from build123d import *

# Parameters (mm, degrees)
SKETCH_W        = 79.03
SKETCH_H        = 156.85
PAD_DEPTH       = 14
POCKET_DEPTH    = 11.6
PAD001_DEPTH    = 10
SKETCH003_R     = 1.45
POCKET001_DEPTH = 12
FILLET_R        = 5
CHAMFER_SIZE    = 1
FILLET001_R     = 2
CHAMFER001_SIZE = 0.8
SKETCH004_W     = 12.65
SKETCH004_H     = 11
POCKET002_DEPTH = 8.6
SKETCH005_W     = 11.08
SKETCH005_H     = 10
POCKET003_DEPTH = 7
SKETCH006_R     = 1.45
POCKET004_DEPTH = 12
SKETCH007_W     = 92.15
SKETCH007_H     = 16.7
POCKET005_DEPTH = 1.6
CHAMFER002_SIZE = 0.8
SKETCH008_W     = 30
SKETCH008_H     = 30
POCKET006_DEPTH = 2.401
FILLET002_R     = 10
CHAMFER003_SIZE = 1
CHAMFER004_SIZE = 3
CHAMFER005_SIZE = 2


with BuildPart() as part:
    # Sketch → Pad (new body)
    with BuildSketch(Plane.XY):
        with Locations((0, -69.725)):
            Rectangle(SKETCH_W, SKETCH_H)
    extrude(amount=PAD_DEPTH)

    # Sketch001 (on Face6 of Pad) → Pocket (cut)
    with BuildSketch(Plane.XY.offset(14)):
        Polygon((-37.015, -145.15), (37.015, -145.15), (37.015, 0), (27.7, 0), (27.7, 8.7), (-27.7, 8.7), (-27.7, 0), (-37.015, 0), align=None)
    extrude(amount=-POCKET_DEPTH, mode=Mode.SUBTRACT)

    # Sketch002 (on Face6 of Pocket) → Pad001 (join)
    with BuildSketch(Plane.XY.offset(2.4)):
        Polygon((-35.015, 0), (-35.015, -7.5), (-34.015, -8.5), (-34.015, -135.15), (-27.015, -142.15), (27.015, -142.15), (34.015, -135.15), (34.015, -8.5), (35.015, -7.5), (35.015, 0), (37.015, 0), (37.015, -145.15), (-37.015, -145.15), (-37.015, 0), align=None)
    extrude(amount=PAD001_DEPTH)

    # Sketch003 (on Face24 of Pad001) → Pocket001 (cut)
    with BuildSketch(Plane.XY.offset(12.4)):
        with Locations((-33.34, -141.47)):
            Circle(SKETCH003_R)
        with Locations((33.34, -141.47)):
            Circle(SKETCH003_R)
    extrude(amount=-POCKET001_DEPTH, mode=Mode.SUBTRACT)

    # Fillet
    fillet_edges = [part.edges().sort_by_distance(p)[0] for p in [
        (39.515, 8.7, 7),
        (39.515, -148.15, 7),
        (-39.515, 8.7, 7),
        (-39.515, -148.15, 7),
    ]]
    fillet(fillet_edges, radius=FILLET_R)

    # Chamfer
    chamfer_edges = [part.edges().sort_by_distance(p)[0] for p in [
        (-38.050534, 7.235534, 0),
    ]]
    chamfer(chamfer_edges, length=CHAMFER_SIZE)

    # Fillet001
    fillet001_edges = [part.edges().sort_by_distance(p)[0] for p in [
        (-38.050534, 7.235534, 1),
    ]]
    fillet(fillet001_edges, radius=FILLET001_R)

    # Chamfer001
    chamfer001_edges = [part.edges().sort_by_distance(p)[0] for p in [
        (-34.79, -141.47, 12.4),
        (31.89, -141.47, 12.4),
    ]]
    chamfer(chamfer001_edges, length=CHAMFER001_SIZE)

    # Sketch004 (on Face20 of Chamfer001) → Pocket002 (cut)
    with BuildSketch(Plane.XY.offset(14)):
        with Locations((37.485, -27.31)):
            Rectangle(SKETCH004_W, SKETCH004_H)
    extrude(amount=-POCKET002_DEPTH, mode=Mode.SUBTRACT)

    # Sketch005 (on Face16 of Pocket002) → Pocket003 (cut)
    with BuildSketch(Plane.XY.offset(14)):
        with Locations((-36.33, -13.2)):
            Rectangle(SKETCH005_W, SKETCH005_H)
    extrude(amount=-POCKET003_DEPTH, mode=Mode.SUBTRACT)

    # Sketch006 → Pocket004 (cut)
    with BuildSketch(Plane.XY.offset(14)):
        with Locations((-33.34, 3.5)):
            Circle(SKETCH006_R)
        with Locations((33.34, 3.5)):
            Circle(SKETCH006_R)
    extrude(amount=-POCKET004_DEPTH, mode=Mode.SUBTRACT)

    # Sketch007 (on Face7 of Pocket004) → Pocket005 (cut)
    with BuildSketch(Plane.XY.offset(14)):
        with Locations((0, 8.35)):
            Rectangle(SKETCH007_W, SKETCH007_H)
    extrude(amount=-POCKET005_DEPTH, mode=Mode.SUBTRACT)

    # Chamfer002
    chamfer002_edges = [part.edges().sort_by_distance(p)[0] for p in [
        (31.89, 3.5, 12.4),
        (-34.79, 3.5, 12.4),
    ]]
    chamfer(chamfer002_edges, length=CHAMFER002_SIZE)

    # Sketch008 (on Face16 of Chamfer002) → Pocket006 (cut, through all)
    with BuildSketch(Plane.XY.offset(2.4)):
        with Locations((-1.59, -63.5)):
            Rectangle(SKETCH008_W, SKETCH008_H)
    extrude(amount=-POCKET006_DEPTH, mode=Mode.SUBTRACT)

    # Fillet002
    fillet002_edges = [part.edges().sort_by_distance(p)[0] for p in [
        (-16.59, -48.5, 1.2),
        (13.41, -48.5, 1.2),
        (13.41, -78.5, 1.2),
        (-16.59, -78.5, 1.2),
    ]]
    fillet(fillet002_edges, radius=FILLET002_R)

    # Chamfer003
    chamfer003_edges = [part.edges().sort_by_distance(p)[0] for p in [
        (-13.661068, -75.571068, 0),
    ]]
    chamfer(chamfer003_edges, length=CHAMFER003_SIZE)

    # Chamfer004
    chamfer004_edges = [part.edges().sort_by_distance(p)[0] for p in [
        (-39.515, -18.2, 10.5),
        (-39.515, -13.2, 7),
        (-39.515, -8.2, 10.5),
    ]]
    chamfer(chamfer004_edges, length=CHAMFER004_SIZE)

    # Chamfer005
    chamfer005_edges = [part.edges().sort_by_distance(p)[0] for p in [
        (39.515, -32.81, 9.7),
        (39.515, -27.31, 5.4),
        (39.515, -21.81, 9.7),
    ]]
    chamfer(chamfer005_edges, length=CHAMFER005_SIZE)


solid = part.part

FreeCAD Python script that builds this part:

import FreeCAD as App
import Part
import Sketcher

V = App.Vector
Q = App.Units.Quantity


def edges_at(feature, points):
    """Names of the edges that pass closest to the given points."""
    edges = feature.Shape.Edges
    near = lambda p: min(range(len(edges)), key=lambda i: edges[i].distToShape(Part.Vertex(*p))[0])
    return sorted({f"Edge{near(p) + 1}" for p in points})

doc = App.newDocument("Part")
params = doc.addObject("Spreadsheet::Sheet", "Params")
for row, (alias, value) in enumerate([
    ("sketch1_width", "79.03 mm"),
    ("sketch1_height", "156.85 mm"),
    ("pad1_length", "14 mm"),
    ("sketch2_width", "55.4 mm"),
    ("sketch2_height", "8.7 mm"),
    ("sketch2_width2", "74.03 mm"),
    ("sketch2_height2", "145.15 mm"),
    ("pocket1_length", "11.6 mm"),
    ("sketch3_width", "2 mm"),
    ("sketch3_height", "7.5 mm"),
    ("sketch3_width2", "74.03 mm"),
    ("sketch3_height2", "145.15 mm"),
    ("pad2_length", "10 mm"),
    ("sketch4_diameter", "2.9 mm"),
    ("pocket2_length", "12 mm"),
    ("fillet_radius", "5 mm"),
    ("chamfer_size", "1 mm"),
    ("fillet2_radius", "2 mm"),
    ("chamfer2_size", "0.8 mm"),
    ("sketch5_height", "11 mm"),
    ("sketch5_width", "12.65 mm"),
    ("pocket3_length", "8.6 mm"),
    ("sketch6_height", "10 mm"),
    ("sketch6_width", "11.08 mm"),
    ("pocket4_length", "7 mm"),
    ("sketch7_diameter", "2.9 mm"),
    ("pocket5_length", "12 mm"),
    ("sketch8_height", "16.7 mm"),
    ("sketch8_width", "92.15 mm"),
    ("pocket6_length", "1.6 mm"),
    ("chamfer3_size", "0.8 mm"),
    ("sketch9_width", "30 mm"),
    ("fillet3_radius", "10 mm"),
    ("chamfer4_size", "1 mm"),
    ("chamfer5_size", "3 mm"),
    ("chamfer6_size", "2 mm"),
], start=1):
    params.set(f"A{row}", alias)
    params.set(f"B{row}", "=" + value)
    params.setAlias(f"B{row}", alias)

body = doc.addObject("PartDesign::Body", "Body")

# Sketch on XY plane
sketch1 = body.newObject("Sketcher::SketchObject", "Sketch")
sketch1.AttachmentSupport = (doc.getObject("XY_Plane"), [""])
sketch1.MapMode = "FlatFace"
sketch1.addGeometry(Part.LineSegment(V(-40, 9, 0), V(-40, -148, 0)), False)
sketch1.addGeometry(Part.LineSegment(V(-40, -148, 0), V(40, -148, 0)), False)
sketch1.addGeometry(Part.LineSegment(V(40, -148, 0), V(40, 9, 0)), False)
sketch1.addGeometry(Part.LineSegment(V(40, 9, 0), V(-40, 9, 0)), False)
sketch1.addConstraint(Sketcher.Constraint("Coincident", 0, 2, 1, 1))
sketch1.addConstraint(Sketcher.Constraint("Coincident", 1, 2, 2, 1))
sketch1.addConstraint(Sketcher.Constraint("Coincident", 2, 2, 3, 1))
sketch1.addConstraint(Sketcher.Constraint("Coincident", 3, 2, 0, 1))
sketch1.addConstraint(Sketcher.Constraint("Vertical", 0))
sketch1.addConstraint(Sketcher.Constraint("Horizontal", 1))
sketch1.addConstraint(Sketcher.Constraint("Vertical", 2))
sketch1.addConstraint(Sketcher.Constraint("Horizontal", 3))
sketch1.addConstraint(Sketcher.Constraint("DistanceX", 1, 1, 1, 2, Q("79.03 mm")))
sketch1.addConstraint(Sketcher.Constraint("DistanceY", 0, 2, 0, 1, Q("156.85 mm")))
sketch1.addConstraint(Sketcher.Constraint("DistanceY", -1, 1, 2, 2, Q("8.7 mm")))
sketch1.addConstraint(Sketcher.Constraint("DistanceX", 0, 2, -1, 1, Q("39.515 mm")))
sketch1.setExpression("Constraints[8]", "Params.sketch1_width")
sketch1.setExpression("Constraints[9]", "Params.sketch1_height")
pad1 = body.newObject("PartDesign::Pad", "Pad")
pad1.Profile = sketch1
pad1.setExpression("Length", "Params.pad1_length")

# Sketch on XY plane
sketch2 = body.newObject("Sketcher::SketchObject", "Sketch001")
sketch2.AttachmentSupport = (doc.getObject("XY_Plane"), [""])
sketch2.MapMode = "FlatFace"
sketch2.AttachmentOffset = App.Placement(V(0, 0, 14), App.Rotation())
sketch2.addGeometry(Part.LineSegment(V(-37, -145, 0), V(37, -145, 0)), False)
sketch2.addGeometry(Part.LineSegment(V(37, -145, 0), V(37, 0, 0)), False)
sketch2.addGeometry(Part.LineSegment(V(37, 0, 0), V(28, 0, 0)), False)
sketch2.addGeometry(Part.LineSegment(V(28, 0, 0), V(28, 9, 0)), False)
sketch2.addGeometry(Part.LineSegment(V(28, 9, 0), V(-28, 9, 0)), False)
sketch2.addGeometry(Part.LineSegment(V(-28, 9, 0), V(-28, 0, 0)), False)
sketch2.addGeometry(Part.LineSegment(V(-28, 0, 0), V(-37, 0, 0)), False)
sketch2.addGeometry(Part.LineSegment(V(-37, 0, 0), V(-37, -145, 0)), False)
sketch2.addConstraint(Sketcher.Constraint("Coincident", 0, 2, 1, 1))
sketch2.addConstraint(Sketcher.Constraint("Coincident", 1, 2, 2, 1))
sketch2.addConstraint(Sketcher.Constraint("Coincident", 2, 2, 3, 1))
sketch2.addConstraint(Sketcher.Constraint("Coincident", 3, 2, 4, 1))
sketch2.addConstraint(Sketcher.Constraint("Coincident", 4, 2, 5, 1))
sketch2.addConstraint(Sketcher.Constraint("Coincident", 5, 2, 6, 1))
sketch2.addConstraint(Sketcher.Constraint("Coincident", 6, 2, 7, 1))
sketch2.addConstraint(Sketcher.Constraint("Coincident", 7, 2, 0, 1))
sketch2.addConstraint(Sketcher.Constraint("Horizontal", 0))
sketch2.addConstraint(Sketcher.Constraint("Vertical", 1))
sketch2.addConstraint(Sketcher.Constraint("Horizontal", 2))
sketch2.addConstraint(Sketcher.Constraint("Vertical", 3))
sketch2.addConstraint(Sketcher.Constraint("Horizontal", 4))
sketch2.addConstraint(Sketcher.Constraint("Vertical", 5))
sketch2.addConstraint(Sketcher.Constraint("Horizontal", 6))
sketch2.addConstraint(Sketcher.Constraint("Vertical", 7))
sketch2.addConstraint(Sketcher.Constraint("Symmetric", 2, 2, 5, 2, -1, 1))
sketch2.addConstraint(Sketcher.Constraint("Symmetric", 1, 2, 6, 2, -2))
sketch2.addConstraint(Sketcher.Constraint("DistanceX", 4, 2, 4, 1, Q("55.4 mm")))
sketch2.addConstraint(Sketcher.Constraint("DistanceY", 3, 1, 3, 2, Q("8.7 mm")))
sketch2.addConstraint(Sketcher.Constraint("DistanceX", 0, 1, 0, 2, Q("74.03 mm")))
sketch2.addConstraint(Sketcher.Constraint("DistanceY", 1, 1, 1, 2, Q("145.15 mm")))
sketch2.setExpression("Constraints[18]", "Params.sketch2_width")
sketch2.setExpression("Constraints[19]", "Params.sketch2_height")
sketch2.setExpression("Constraints[20]", "Params.sketch2_width2")
sketch2.setExpression("Constraints[21]", "Params.sketch2_height2")
pocket1 = body.newObject("PartDesign::Pocket", "Pocket")
pocket1.Profile = sketch2
pocket1.setExpression("Length", "Params.pocket1_length")

# Sketch on XY plane
sketch3 = body.newObject("Sketcher::SketchObject", "Sketch002")
sketch3.AttachmentSupport = (doc.getObject("XY_Plane"), [""])
sketch3.MapMode = "FlatFace"
sketch3.AttachmentOffset = App.Placement(V(0, 0, 2.4), App.Rotation())
sketch3.addGeometry(Part.LineSegment(V(-35, -7.5, 0), V(-35, 0, 0)), False)
sketch3.addGeometry(Part.LineSegment(V(-35, 0, 0), V(-37, 0, 0)), False)
sketch3.addGeometry(Part.LineSegment(V(-37, 0, 0), V(-37, -145.2, 0)), False)
sketch3.addGeometry(Part.LineSegment(V(-37, -145.2, 0), V(37, -145.2, 0)), False)
sketch3.addGeometry(Part.LineSegment(V(37, -145.2, 0), V(37, 0, 0)), False)
sketch3.addGeometry(Part.LineSegment(V(37, 0, 0), V(35, 0, 0)), False)
sketch3.addGeometry(Part.LineSegment(V(35, 0, 0), V(35, -7.5, 0)), False)
sketch3.addGeometry(Part.LineSegment(V(35, -7.5, 0), V(34, -8.5, 0)), False)
sketch3.addGeometry(Part.LineSegment(V(34, -8.5, 0), V(34, -135.2, 0)), False)
sketch3.addGeometry(Part.LineSegment(V(34, -135.2, 0), V(27, -142.2, 0)), False)
sketch3.addGeometry(Part.LineSegment(V(27, -142.2, 0), V(-27, -142.2, 0)), False)
sketch3.addGeometry(Part.LineSegment(V(-27, -142.2, 0), V(-34, -135.2, 0)), False)
sketch3.addGeometry(Part.LineSegment(V(-34, -135.2, 0), V(-34, -8.5, 0)), False)
sketch3.addGeometry(Part.LineSegment(V(-34, -8.5, 0), V(-35, -7.5, 0)), False)
sketch3.addConstraint(Sketcher.Constraint("Coincident", 0, 2, 1, 1))
sketch3.addConstraint(Sketcher.Constraint("Coincident", 1, 2, 2, 1))
sketch3.addConstraint(Sketcher.Constraint("Coincident", 2, 2, 3, 1))
sketch3.addConstraint(Sketcher.Constraint("Coincident", 3, 2, 4, 1))
sketch3.addConstraint(Sketcher.Constraint("Coincident", 4, 2, 5, 1))
sketch3.addConstraint(Sketcher.Constraint("Coincident", 5, 2, 6, 1))
sketch3.addConstraint(Sketcher.Constraint("Coincident", 6, 2, 7, 1))
sketch3.addConstraint(Sketcher.Constraint("Coincident", 7, 2, 8, 1))
sketch3.addConstraint(Sketcher.Constraint("Coincident", 8, 2, 9, 1))
sketch3.addConstraint(Sketcher.Constraint("Coincident", 9, 2, 10, 1))
sketch3.addConstraint(Sketcher.Constraint("Coincident", 10, 2, 11, 1))
sketch3.addConstraint(Sketcher.Constraint("Coincident", 11, 2, 12, 1))
sketch3.addConstraint(Sketcher.Constraint("Coincident", 12, 2, 13, 1))
sketch3.addConstraint(Sketcher.Constraint("Coincident", 13, 2, 0, 1))
sketch3.addConstraint(Sketcher.Constraint("Vertical", 0))
sketch3.addConstraint(Sketcher.Constraint("Horizontal", 1))
sketch3.addConstraint(Sketcher.Constraint("Vertical", 2))
sketch3.addConstraint(Sketcher.Constraint("Horizontal", 3))
sketch3.addConstraint(Sketcher.Constraint("Vertical", 4))
sketch3.addConstraint(Sketcher.Constraint("Horizontal", 5))
sketch3.addConstraint(Sketcher.Constraint("Vertical", 6))
sketch3.addConstraint(Sketcher.Constraint("Vertical", 8))
sketch3.addConstraint(Sketcher.Constraint("Horizontal", 10))
sketch3.addConstraint(Sketcher.Constraint("Vertical", 12))
sketch3.addConstraint(Sketcher.Constraint("Symmetric", 1, 2, 4, 2, -1, 1))
sketch3.addConstraint(Sketcher.Constraint("Symmetric", 0, 2, 5, 2, -2))
sketch3.addConstraint(Sketcher.Constraint("Symmetric", 8, 2, 11, 2, -2))
sketch3.addConstraint(Sketcher.Constraint("Parallel", 7, 9))
sketch3.addConstraint(Sketcher.Constraint("Perpendicular", 9, 11))
sketch3.addConstraint(Sketcher.Constraint("Parallel", 11, 13))
sketch3.addConstraint(Sketcher.Constraint("Horizontal", 7, 2, 12, 2))
sketch3.addConstraint(Sketcher.Constraint("Horizontal", 6, 2, 13, 2))
sketch3.addConstraint(Sketcher.Constraint("DistanceX", 1, 2, 1, 1, Q("2 mm")))
sketch3.addConstraint(Sketcher.Constraint("DistanceY", 0, 1, 0, 2, Q("7.5 mm")))
sketch3.addConstraint(Sketcher.Constraint("DistanceX", 7, 2, 6, 2, Q("1 mm")))
sketch3.addConstraint(Sketcher.Constraint("DistanceY", 3, 2, 8, 2, Q("10 mm")))
sketch3.addConstraint(Sketcher.Constraint("DistanceX", 9, 2, 8, 2, Q("7 mm")))
sketch3.addConstraint(Sketcher.Constraint("DistanceX", 3, 1, 3, 2, Q("74.03 mm")))
sketch3.addConstraint(Sketcher.Constraint("DistanceY", 2, 2, 2, 1, Q("145.15 mm")))
sketch3.setExpression("Constraints[32]", "Params.sketch3_width")
sketch3.setExpression("Constraints[33]", "Params.sketch3_height")
sketch3.setExpression("Constraints[37]", "Params.sketch3_width2")
sketch3.setExpression("Constraints[38]", "Params.sketch3_height2")
pad2 = body.newObject("PartDesign::Pad", "Pad001")
pad2.Profile = sketch3
pad2.setExpression("Length", "Params.pad2_length")

# Sketch on XY plane
sketch4 = body.newObject("Sketcher::SketchObject", "Sketch003")
sketch4.AttachmentSupport = (doc.getObject("XY_Plane"), [""])
sketch4.MapMode = "FlatFace"
sketch4.AttachmentOffset = App.Placement(V(0, 0, 12.4), App.Rotation())
sketch4.addGeometry(Part.Circle(V(-33.3, -141.5, 0), V(0, 0, 1), 1.4), False)
sketch4.addGeometry(Part.Circle(V(33.3, -141.5, 0), V(0, 0, 1), 1.4), False)
sketch4.addConstraint(Sketcher.Constraint("Equal", 0, 1))
sketch4.addConstraint(Sketcher.Constraint("Symmetric", 0, 3, 1, 3, -2))
sketch4.addConstraint(Sketcher.Constraint("Diameter", 0, Q("2.9 mm")))
sketch4.addConstraint(Sketcher.Constraint("DistanceX", 0, 3, -1, 1, Q("33.34 mm")))
sketch4.addConstraint(Sketcher.Constraint("DistanceY", 0, 3, -1, 1, Q("141.47 mm")))
sketch4.setExpression("Constraints[2]", "Params.sketch4_diameter")
pocket2 = body.newObject("PartDesign::Pocket", "Pocket001")
pocket2.Profile = sketch4
pocket2.setExpression("Length", "Params.pocket2_length")
doc.recompute()

fillet = body.newObject("PartDesign::Fillet", "Fillet")
fillet.Base = (pocket2, edges_at(pocket2, [
    (39.515, 8.7, 7),
    (39.515, -148.15, 7),
    (-39.515, 8.7, 7),
    (-39.515, -148.15, 7),
]))
fillet.setExpression("Radius", "Params.fillet_radius")
doc.recompute()

chamfer = body.newObject("PartDesign::Chamfer", "Chamfer")
chamfer.Base = (fillet, edges_at(fillet, [(-38.051, 7.236, 0)]))
chamfer.setExpression("Size", "Params.chamfer_size")
doc.recompute()

fillet2 = body.newObject("PartDesign::Fillet", "Fillet001")
fillet2.Base = (chamfer, edges_at(chamfer, [(-38.051, 7.236, 1)]))
fillet2.setExpression("Radius", "Params.fillet2_radius")
doc.recompute()

chamfer2 = body.newObject("PartDesign::Chamfer", "Chamfer001")
chamfer2.Base = (fillet2, edges_at(fillet2, [(-34.79, -141.47, 12.4), (31.89, -141.47, 12.4)]))
chamfer2.setExpression("Size", "Params.chamfer2_size")

# Sketch on XY plane
sketch5 = body.newObject("Sketcher::SketchObject", "Sketch004")
sketch5.AttachmentSupport = (doc.getObject("XY_Plane"), [""])
sketch5.MapMode = "FlatFace"
sketch5.AttachmentOffset = App.Placement(V(0, 0, 14), App.Rotation())
sketch5.addGeometry(Part.LineSegment(V(31, -22, 0), V(31, -33, 0)), False)
sketch5.addGeometry(Part.LineSegment(V(31, -33, 0), V(44, -33, 0)), False)
sketch5.addGeometry(Part.LineSegment(V(44, -33, 0), V(44, -22, 0)), False)
sketch5.addGeometry(Part.LineSegment(V(44, -22, 0), V(31, -22, 0)), False)
sketch5.addConstraint(Sketcher.Constraint("Coincident", 0, 2, 1, 1))
sketch5.addConstraint(Sketcher.Constraint("Coincident", 1, 2, 2, 1))
sketch5.addConstraint(Sketcher.Constraint("Coincident", 2, 2, 3, 1))
sketch5.addConstraint(Sketcher.Constraint("Coincident", 3, 2, 0, 1))
sketch5.addConstraint(Sketcher.Constraint("Vertical", 0))
sketch5.addConstraint(Sketcher.Constraint("Horizontal", 1))
sketch5.addConstraint(Sketcher.Constraint("Vertical", 2))
sketch5.addConstraint(Sketcher.Constraint("Horizontal", 3))
sketch5.addConstraint(Sketcher.Constraint("DistanceY", 0, 2, 0, 1, Q("11 mm")))
sketch5.addConstraint(Sketcher.Constraint("DistanceX", 1, 1, 1, 2, Q("12.65 mm")))
sketch5.addConstraint(Sketcher.Constraint("DistanceX", -1, 1, 0, 2, Q("31.16 mm")))
sketch5.addConstraint(Sketcher.Constraint("DistanceY", 0, 2, -1, 1, Q("32.81 mm")))
sketch5.setExpression("Constraints[8]", "Params.sketch5_height")
sketch5.setExpression("Constraints[9]", "Params.sketch5_width")
pocket3 = body.newObject("PartDesign::Pocket", "Pocket002")
pocket3.Profile = sketch5
pocket3.setExpression("Length", "Params.pocket3_length")

# Sketch on XY plane
sketch6 = body.newObject("Sketcher::SketchObject", "Sketch005")
sketch6.AttachmentSupport = (doc.getObject("XY_Plane"), [""])
sketch6.MapMode = "FlatFace"
sketch6.AttachmentOffset = App.Placement(V(0, 0, 14), App.Rotation())
sketch6.addGeometry(Part.LineSegment(V(-42, -8, 0), V(-42, -18, 0)), False)
sketch6.addGeometry(Part.LineSegment(V(-42, -18, 0), V(-31, -18, 0)), False)
sketch6.addGeometry(Part.LineSegment(V(-31, -18, 0), V(-31, -8, 0)), False)
sketch6.addGeometry(Part.LineSegment(V(-31, -8, 0), V(-42, -8, 0)), False)
sketch6.addConstraint(Sketcher.Constraint("Coincident", 0, 2, 1, 1))
sketch6.addConstraint(Sketcher.Constraint("Coincident", 1, 2, 2, 1))
sketch6.addConstraint(Sketcher.Constraint("Coincident", 2, 2, 3, 1))
sketch6.addConstraint(Sketcher.Constraint("Coincident", 3, 2, 0, 1))
sketch6.addConstraint(Sketcher.Constraint("Vertical", 0))
sketch6.addConstraint(Sketcher.Constraint("Horizontal", 1))
sketch6.addConstraint(Sketcher.Constraint("Vertical", 2))
sketch6.addConstraint(Sketcher.Constraint("Horizontal", 3))
sketch6.addConstraint(Sketcher.Constraint("DistanceY", 0, 2, 0, 1, Q("10 mm")))
sketch6.addConstraint(Sketcher.Constraint("DistanceX", 1, 1, 1, 2, Q("11.08 mm")))
sketch6.addConstraint(Sketcher.Constraint("DistanceY", 0, 2, -1, 1, Q("18.2 mm")))
sketch6.addConstraint(Sketcher.Constraint("DistanceX", 0, 2, -1, 1, Q("41.87 mm")))
sketch6.setExpression("Constraints[8]", "Params.sketch6_height")
sketch6.setExpression("Constraints[9]", "Params.sketch6_width")
pocket4 = body.newObject("PartDesign::Pocket", "Pocket003")
pocket4.Profile = sketch6
pocket4.setExpression("Length", "Params.pocket4_length")

# Sketch on XY plane
sketch7 = body.newObject("Sketcher::SketchObject", "Sketch006")
sketch7.AttachmentSupport = (doc.getObject("XY_Plane"), [""])
sketch7.MapMode = "FlatFace"
sketch7.AttachmentOffset = App.Placement(V(0, 0, 14), App.Rotation())
sketch7.addGeometry(Part.Circle(V(-33.3, 3.5, 0), V(0, 0, 1), 1.4), False)
sketch7.addGeometry(Part.Circle(V(33.3, 3.5, 0), V(0, 0, 1), 1.4), False)
sketch7.addConstraint(Sketcher.Constraint("Equal", 0, 1))
sketch7.addConstraint(Sketcher.Constraint("Symmetric", 0, 3, 1, 3, -2))
sketch7.addConstraint(Sketcher.Constraint("Diameter", 0, Q("2.9 mm")))
sketch7.addConstraint(Sketcher.Constraint("DistanceY", -1, 1, 0, 3, Q("3.5 mm")))
sketch7.addConstraint(Sketcher.Constraint("DistanceX", 0, 3, -1, 1, Q("33.34 mm")))
sketch7.setExpression("Constraints[2]", "Params.sketch7_diameter")
pocket5 = body.newObject("PartDesign::Pocket", "Pocket004")
pocket5.Profile = sketch7
pocket5.setExpression("Length", "Params.pocket5_length")

# Sketch on XY plane
sketch8 = body.newObject("Sketcher::SketchObject", "Sketch007")
sketch8.AttachmentSupport = (doc.getObject("XY_Plane"), [""])
sketch8.MapMode = "FlatFace"
sketch8.AttachmentOffset = App.Placement(V(0, 0, 14), App.Rotation())
sketch8.addGeometry(Part.LineSegment(V(-46, 17, 0), V(-46, 0, 0)), False)
sketch8.addGeometry(Part.LineSegment(V(-46, 0, 0), V(46, 0, 0)), False)
sketch8.addGeometry(Part.LineSegment(V(46, 0, 0), V(46, 17, 0)), False)
sketch8.addGeometry(Part.LineSegment(V(46, 17, 0), V(-46, 17, 0)), False)
sketch8.addConstraint(Sketcher.Constraint("Coincident", 0, 2, 1, 1))
sketch8.addConstraint(Sketcher.Constraint("Coincident", 1, 2, 2, 1))
sketch8.addConstraint(Sketcher.Constraint("Coincident", 2, 2, 3, 1))
sketch8.addConstraint(Sketcher.Constraint("Coincident", 3, 2, 0, 1))
sketch8.addConstraint(Sketcher.Constraint("Vertical", 0))
sketch8.addConstraint(Sketcher.Constraint("Horizontal", 1))
sketch8.addConstraint(Sketcher.Constraint("Vertical", 2))
sketch8.addConstraint(Sketcher.Constraint("Horizontal", 3))
sketch8.addConstraint(Sketcher.Constraint("Symmetric", 0, 2, 1, 2, -1, 1))
sketch8.addConstraint(Sketcher.Constraint("DistanceY", 0, 2, 0, 1, Q("16.7 mm")))
sketch8.addConstraint(Sketcher.Constraint("DistanceX", 1, 1, 1, 2, Q("92.15 mm")))
sketch8.setExpression("Constraints[9]", "Params.sketch8_height")
sketch8.setExpression("Constraints[10]", "Params.sketch8_width")
pocket6 = body.newObject("PartDesign::Pocket", "Pocket005")
pocket6.Profile = sketch8
pocket6.setExpression("Length", "Params.pocket6_length")
doc.recompute()

chamfer3 = body.newObject("PartDesign::Chamfer", "Chamfer002")
chamfer3.Base = (pocket6, edges_at(pocket6, [(31.89, 3.5, 12.4), (-34.79, 3.5, 12.4)]))
chamfer3.setExpression("Size", "Params.chamfer3_size")

# Sketch on XY plane
sketch9 = body.newObject("Sketcher::SketchObject", "Sketch008")
sketch9.AttachmentSupport = (doc.getObject("XY_Plane"), [""])
sketch9.MapMode = "FlatFace"
sketch9.AttachmentOffset = App.Placement(V(0, 0, 2.4), App.Rotation())
sketch9.addGeometry(Part.LineSegment(V(-17, -48, 0), V(-17, -78, 0)), False)
sketch9.addGeometry(Part.LineSegment(V(-17, -78, 0), V(13, -78, 0)), False)
sketch9.addGeometry(Part.LineSegment(V(13, -78, 0), V(13, -48, 0)), False)
sketch9.addGeometry(Part.LineSegment(V(13, -48, 0), V(-17, -48, 0)), False)
sketch9.addConstraint(Sketcher.Constraint("Coincident", 0, 2, 1, 1))
sketch9.addConstraint(Sketcher.Constraint("Coincident", 1, 2, 2, 1))
sketch9.addConstraint(Sketcher.Constraint("Coincident", 2, 2, 3, 1))
sketch9.addConstraint(Sketcher.Constraint("Coincident", 3, 2, 0, 1))
sketch9.addConstraint(Sketcher.Constraint("Vertical", 0))
sketch9.addConstraint(Sketcher.Constraint("Horizontal", 1))
sketch9.addConstraint(Sketcher.Constraint("Vertical", 2))
sketch9.addConstraint(Sketcher.Constraint("Horizontal", 3))
sketch9.addConstraint(Sketcher.Constraint("Equal", 3, 0))
sketch9.addConstraint(Sketcher.Constraint("DistanceX", 1, 1, 1, 2, Q("30 mm")))
sketch9.addConstraint(Sketcher.Constraint("DistanceY", 0, 2, -1, 1, Q("78.5 mm")))
sketch9.addConstraint(Sketcher.Constraint("DistanceX", 0, 2, -1, 1, Q("16.59 mm")))
sketch9.setExpression("Constraints[9]", "Params.sketch9_width")
pocket7 = body.newObject("PartDesign::Pocket", "Pocket006")
pocket7.Profile = sketch9
pocket7.Type = "ThroughAll"
doc.recompute()

fillet3 = body.newObject("PartDesign::Fillet", "Fillet002")
fillet3.Base = (pocket7, edges_at(pocket7, [
    (-16.59, -48.5, 1.2),
    (13.41, -48.5, 1.2),
    (13.41, -78.5, 1.2),
    (-16.59, -78.5, 1.2),
]))
fillet3.setExpression("Radius", "Params.fillet3_radius")
doc.recompute()

chamfer4 = body.newObject("PartDesign::Chamfer", "Chamfer003")
chamfer4.Base = (fillet3, edges_at(fillet3, [(-13.661, -75.571, 0)]))
chamfer4.setExpression("Size", "Params.chamfer4_size")
doc.recompute()

chamfer5 = body.newObject("PartDesign::Chamfer", "Chamfer004")
chamfer5.Base = (chamfer4, edges_at(chamfer4, [(-39.515, -18.2, 10.5), (-39.515, -13.2, 7), (-39.515, -8.2, 10.5)]))
chamfer5.setExpression("Size", "Params.chamfer5_size")
doc.recompute()

chamfer6 = body.newObject("PartDesign::Chamfer", "Chamfer005")
chamfer6.Base = (chamfer5, edges_at(chamfer5, [(39.515, -32.81, 9.7), (39.515, -27.31, 5.4), (39.515, -21.81, 9.7)]))
chamfer6.setExpression("Size", "Params.chamfer6_size")

doc.recompute()
